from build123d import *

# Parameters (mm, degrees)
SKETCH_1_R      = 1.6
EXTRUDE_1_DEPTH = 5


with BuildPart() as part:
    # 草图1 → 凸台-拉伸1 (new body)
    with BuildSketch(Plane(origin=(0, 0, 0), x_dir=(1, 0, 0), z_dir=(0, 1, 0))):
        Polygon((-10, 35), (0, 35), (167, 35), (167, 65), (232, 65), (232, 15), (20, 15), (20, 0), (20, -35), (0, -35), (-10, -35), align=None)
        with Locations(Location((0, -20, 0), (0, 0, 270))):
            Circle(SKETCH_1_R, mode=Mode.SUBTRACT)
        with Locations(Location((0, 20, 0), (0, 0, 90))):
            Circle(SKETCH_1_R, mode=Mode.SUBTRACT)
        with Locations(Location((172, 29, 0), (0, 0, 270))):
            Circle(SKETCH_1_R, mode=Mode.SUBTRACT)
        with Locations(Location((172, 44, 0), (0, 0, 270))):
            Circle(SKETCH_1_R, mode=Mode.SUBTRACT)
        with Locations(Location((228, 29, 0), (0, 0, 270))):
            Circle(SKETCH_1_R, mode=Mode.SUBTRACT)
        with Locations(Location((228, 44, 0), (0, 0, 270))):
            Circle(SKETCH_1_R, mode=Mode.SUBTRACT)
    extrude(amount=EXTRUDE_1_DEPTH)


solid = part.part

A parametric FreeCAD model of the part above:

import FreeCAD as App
import Part
import Sketcher
from FreeCAD import Vector

doc = App.newDocument("Part")
body = doc.addObject("PartDesign::Body", "Body")

# Sketch on XZ plane
sketch1 = body.newObject("Sketcher::SketchObject", "Sketch")
sketch1.AttachmentSupport = (doc.getObject("XZ_Plane"), [""])
sketch1.MapMode = "FlatFace"
sketch1.addGeometry(Part.LineSegment(Vector(167, -35, 0), Vector(-10, -35, 0)), False)
sketch1.addGeometry(Part.LineSegment(Vector(-10, -35, 0), Vector(-10, 35, 0)), False)
sketch1.addGeometry(Part.LineSegment(Vector(-10, 35, 0), Vector(20, 35, 0)), False)
sketch1.addGeometry(Part.LineSegment(Vector(20, 35, 0), Vector(20, -15, 0)), False)
sketch1.addGeometry(Part.LineSegment(Vector(20, -15, 0), Vector(232, -15, 0)), False)
sketch1.addGeometry(Part.LineSegment(Vector(232, -15, 0), Vector(232, -65, 0)), False)
sketch1.addGeometry(Part.LineSegment(Vector(232, -65, 0), Vector(167, -65, 0)), False)
sketch1.addGeometry(Part.LineSegment(Vector(167, -65, 0), Vector(167, -35, 0)), False)
sketch1.addGeometry(Part.Circle(Vector(0, 20, 0), Vector(0, 0, 1), 1.6), False)
sketch1.addGeometry(Part.Circle(Vector(228, -29, 0), Vector(0, 0, 1), 1.6), False)
sketch1.addGeometry(Part.Circle(Vector(172, -29, 0), Vector(0, 0, 1), 1.6), False)
sketch1.addGeometry(Part.Circle(Vector(228, -44, 0), Vector(0, 0, 1), 1.6), False)
sketch1.addGeometry(Part.Circle(Vector(172, -44, 0), Vector(0, 0, 1), 1.6), False)
sketch1.addGeometry(Part.Circle(Vector(0, -20, 0), Vector(0, 0, 1), 1.6), False)
sketch1.addConstraint(Sketcher.Constraint("Coincident", 0, 2, 1, 1))
sketch1.addConstraint(Sketcher.Constraint("Coincident", 1, 2, 2, 1))
sketch1.addConstraint(Sketcher.Constraint("Coincident", 2, 2, 3, 1))
sketch1.addConstraint(Sketcher.Constraint("Coincident", 3, 2, 4, 1))
sketch1.addConstraint(Sketcher.Constraint("Coincident", 4, 2, 5, 1))
sketch1.addConstraint(Sketcher.Constraint("Coincident", 5, 2, 6, 1))
sketch1.addConstraint(Sketcher.Constraint("Coincident", 6, 2, 7, 1))
sketch1.addConstraint(Sketcher.Constraint("Coincident", 7, 2, 0, 1))
sketch1.addConstraint(Sketcher.Constraint("Horizontal", 0))
sketch1.addConstraint(Sketcher.Constraint("Vertical", 1))
sketch1.addConstraint(Sketcher.Constraint("Horizontal", 2))
sketch1.addConstraint(Sketcher.Constraint("Vertical", 3))
sketch1.addConstraint(Sketcher.Constraint("Horizontal", 4))
sketch1.addConstraint(Sketcher.Constraint("Vertical", 5))
sketch1.addConstraint(Sketcher.Constraint("Horizontal", 6))
sketch1.addConstraint(Sketcher.Constraint("Vertical", 7))
sketch1.addConstraint(Sketcher.Constraint("Equal", 8, 9))
sketch1.addConstraint(Sketcher.Constraint("Equal", 9, 10))
sketch1.addConstraint(Sketcher.Constraint("Equal", 10, 11))
sketch1.addConstraint(Sketcher.Constraint("Equal", 11, 12))
sketch1.addConstraint(Sketcher.Constraint("Equal", 12, 13))
sketch1.addConstraint(Sketcher.Constraint("Symmetric", 8, 3, 13, 3, -1, 1))
sketch1.addConstraint(Sketcher.Constraint("PointOnObject", 8, 3, -2))
sketch1.addConstraint(Sketcher.Constraint("Horizontal", 9, 3, 10, 3))
sketch1.addConstraint(Sketcher.Constraint("Horizontal", 11, 3, 12, 3))
sketch1.addConstraint(Sketcher.Constraint("Vertical", 9, 3, 11, 3))
sketch1.addConstraint(Sketcher.Constraint("Vertical", 10, 3, 12, 3))
sketch1.addConstraint(Sketcher.Constraint("Equal", 3, 5))
sketch1.addConstraint(Sketcher.Constraint("Equal", 2, 7))
sketch1.addConstraint(Sketcher.Constraint("Diameter", 8, 3.2))
sketch1.addConstraint(Sketcher.Constraint("DistanceX", 0, 2, 0, 1, 177.0))
sketch1.addConstraint(Sketcher.Constraint("DistanceX", 2, 1, 2, 2, 30.0))
sketch1.addConstraint(Sketcher.Constraint("DistanceX", 4, 1, 4, 2, 212.0))
sketch1.addConstraint(Sketcher.Constraint("DistanceY", 1, 1, 1, 2, 70.0))
sketch1.addConstraint(Sketcher.Constraint("DistanceY", -1, 1, 8, 3, 20.0))
sketch1.addConstraint(Sketcher.Constraint("DistanceX", -1, 1, 9, 3, 228.0))
sketch1.addConstraint(Sketcher.Constraint("DistanceY", 9, 3, -1, 1, 29.0))
sketch1.addConstraint(Sketcher.Constraint("DistanceX", -1, 1, 10, 3, 172.0))
sketch1.addConstraint(Sketcher.Constraint("DistanceY", 11, 3, -1, 1, 44.0))
sketch1.addConstraint(Sketcher.Constraint("DistanceX", 0, 2, -1, 1, 10.0))
sketch1.addConstraint(Sketcher.Constraint("DistanceY", 0, 2, -1, 1, 35.0))
pad1 = body.newObject("PartDesign::Pad", "Pad")
pad1.Profile = sketch1
pad1.Length = 5
pad1.Reversed = True

doc.recompute()
